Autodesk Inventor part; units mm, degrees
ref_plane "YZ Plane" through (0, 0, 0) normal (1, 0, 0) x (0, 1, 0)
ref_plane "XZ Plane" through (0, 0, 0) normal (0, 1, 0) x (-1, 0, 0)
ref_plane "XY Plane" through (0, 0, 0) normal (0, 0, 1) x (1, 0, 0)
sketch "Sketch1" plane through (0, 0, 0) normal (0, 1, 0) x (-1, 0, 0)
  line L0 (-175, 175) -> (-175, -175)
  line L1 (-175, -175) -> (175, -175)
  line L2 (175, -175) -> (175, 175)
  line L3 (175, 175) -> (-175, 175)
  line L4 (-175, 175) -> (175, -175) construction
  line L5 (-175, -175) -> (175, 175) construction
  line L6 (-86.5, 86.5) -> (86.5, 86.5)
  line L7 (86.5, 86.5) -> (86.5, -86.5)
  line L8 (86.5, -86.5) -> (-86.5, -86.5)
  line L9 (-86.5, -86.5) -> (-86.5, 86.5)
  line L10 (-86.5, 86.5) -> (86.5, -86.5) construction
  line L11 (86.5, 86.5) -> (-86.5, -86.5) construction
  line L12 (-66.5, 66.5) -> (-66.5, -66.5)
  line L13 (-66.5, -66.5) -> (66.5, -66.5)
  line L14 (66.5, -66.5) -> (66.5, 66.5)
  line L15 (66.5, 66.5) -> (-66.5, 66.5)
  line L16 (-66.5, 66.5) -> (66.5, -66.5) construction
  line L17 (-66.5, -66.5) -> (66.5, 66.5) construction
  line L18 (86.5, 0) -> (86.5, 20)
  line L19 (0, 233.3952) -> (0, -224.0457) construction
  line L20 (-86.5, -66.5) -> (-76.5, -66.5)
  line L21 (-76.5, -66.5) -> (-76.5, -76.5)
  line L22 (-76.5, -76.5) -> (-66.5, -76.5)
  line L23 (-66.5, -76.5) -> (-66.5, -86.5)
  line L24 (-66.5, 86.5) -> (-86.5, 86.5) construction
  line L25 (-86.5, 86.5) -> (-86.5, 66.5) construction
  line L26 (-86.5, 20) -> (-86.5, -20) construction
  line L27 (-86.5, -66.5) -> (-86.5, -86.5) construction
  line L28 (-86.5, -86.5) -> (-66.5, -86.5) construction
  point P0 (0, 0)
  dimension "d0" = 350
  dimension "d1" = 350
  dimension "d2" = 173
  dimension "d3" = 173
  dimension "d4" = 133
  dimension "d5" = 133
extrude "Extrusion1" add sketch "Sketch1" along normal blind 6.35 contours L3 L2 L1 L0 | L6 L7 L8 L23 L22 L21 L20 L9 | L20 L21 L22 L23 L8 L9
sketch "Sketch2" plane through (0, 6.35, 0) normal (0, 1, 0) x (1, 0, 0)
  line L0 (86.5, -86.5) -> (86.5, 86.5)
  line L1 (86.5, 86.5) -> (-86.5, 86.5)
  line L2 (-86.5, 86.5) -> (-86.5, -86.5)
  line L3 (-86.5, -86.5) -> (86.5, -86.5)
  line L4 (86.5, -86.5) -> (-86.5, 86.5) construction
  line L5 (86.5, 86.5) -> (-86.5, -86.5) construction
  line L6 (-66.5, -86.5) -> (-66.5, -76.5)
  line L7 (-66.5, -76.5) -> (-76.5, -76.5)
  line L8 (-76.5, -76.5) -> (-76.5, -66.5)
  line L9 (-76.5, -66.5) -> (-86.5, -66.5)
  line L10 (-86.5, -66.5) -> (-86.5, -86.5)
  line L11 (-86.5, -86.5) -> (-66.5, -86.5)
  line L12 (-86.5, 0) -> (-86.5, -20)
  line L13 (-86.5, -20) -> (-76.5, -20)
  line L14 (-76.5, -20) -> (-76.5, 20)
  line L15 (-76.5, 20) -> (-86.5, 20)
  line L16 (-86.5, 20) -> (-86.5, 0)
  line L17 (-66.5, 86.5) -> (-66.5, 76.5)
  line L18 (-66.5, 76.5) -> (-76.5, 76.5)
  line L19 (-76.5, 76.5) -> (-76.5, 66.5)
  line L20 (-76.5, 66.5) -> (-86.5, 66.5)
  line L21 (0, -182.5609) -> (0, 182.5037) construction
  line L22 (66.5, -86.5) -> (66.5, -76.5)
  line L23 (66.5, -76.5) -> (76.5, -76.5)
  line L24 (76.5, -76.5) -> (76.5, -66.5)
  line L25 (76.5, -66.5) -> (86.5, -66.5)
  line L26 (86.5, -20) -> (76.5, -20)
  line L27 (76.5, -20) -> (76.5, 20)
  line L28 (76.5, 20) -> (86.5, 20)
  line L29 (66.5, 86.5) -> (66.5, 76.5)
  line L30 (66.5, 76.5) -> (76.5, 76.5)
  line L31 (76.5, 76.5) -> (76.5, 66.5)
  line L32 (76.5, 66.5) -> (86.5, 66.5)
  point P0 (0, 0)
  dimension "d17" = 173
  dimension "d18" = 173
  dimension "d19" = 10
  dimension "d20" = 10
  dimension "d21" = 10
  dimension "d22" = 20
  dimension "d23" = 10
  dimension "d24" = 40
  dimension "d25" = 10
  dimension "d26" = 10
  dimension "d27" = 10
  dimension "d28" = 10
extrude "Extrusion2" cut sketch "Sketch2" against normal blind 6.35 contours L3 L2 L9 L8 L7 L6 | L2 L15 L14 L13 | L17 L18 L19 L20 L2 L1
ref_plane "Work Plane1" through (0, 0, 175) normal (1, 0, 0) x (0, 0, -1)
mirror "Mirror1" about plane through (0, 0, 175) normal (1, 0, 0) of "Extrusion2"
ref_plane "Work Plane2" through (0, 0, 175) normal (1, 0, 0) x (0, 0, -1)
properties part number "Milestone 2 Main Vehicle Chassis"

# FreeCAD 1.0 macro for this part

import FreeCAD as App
import Part
import Sketcher
Q = App.Units.Quantity


def add_polygon(sketch, points):
    """Adds a closed chain of lines whose ends are joined by coincident constraints."""
    first, n = sketch.GeometryCount, len(points)
    for a, b in zip(points, points[1:] + points[:1]):
        sketch.addGeometry(Part.LineSegment(App.Vector(*a, 0), App.Vector(*b, 0)), False)
    for i in range(n):
        sketch.addConstraint(Sketcher.Constraint("Coincident", first + i, 2, first + (i + 1) % n, 1))

doc = App.newDocument("Part")
body = doc.addObject("PartDesign::Body", "Body")

# Sketch on XZ plane
sketch1 = doc.addObject("Sketcher::SketchObject", "Sketch")
body.addObject(sketch1)
sketch1.AttachmentSupport = (doc.XZ_Plane, [""])
sketch1.MapMode = "FlatFace"
add_polygon(sketch1, [(-175, 175), (175, 175), (175, -175), (-175, -175)])  # lines 0-3
add_polygon(sketch1, [(66, 66), (-66, 66), (-66, -66), (66, -66)])  # lines 4-7
sketch1.addConstraint([
    Sketcher.Constraint("Horizontal", 0),
    Sketcher.Constraint("Vertical", 1),
    Sketcher.Constraint("Horizontal", 2),
    Sketcher.Constraint("Vertical", 3),
    Sketcher.Constraint("Horizontal", 4),
    Sketcher.Constraint("Vertical", 5),
    Sketcher.Constraint("Horizontal", 6),
    Sketcher.Constraint("Vertical", 7),
    Sketcher.Constraint("Symmetric", 0, 2, 2, 2, -1, 1),
    Sketcher.Constraint("Symmetric", 4, 2, 6, 2, -1, 1),
    Sketcher.Constraint("Equal", 2, 1),
    Sketcher.Constraint("Equal", 6, 5),
    Sketcher.Constraint("DistanceX", 0, 1, 0, 2, Q("350 mm")),
    Sketcher.Constraint("DistanceX", 4, 2, 4, 1, Q("133 mm")),
])
pad1 = doc.addObject("PartDesign::Pad", "Pad")
body.addObject(pad1)
pad1.Profile = sketch1
pad1.Length = 6.35
pad1.Reversed = True

# Sketch on XZ plane
sketch2 = doc.addObject("Sketcher::SketchObject", "Sketch001")
body.addObject(sketch2)
sketch2.AttachmentSupport = (doc.XZ_Plane, [""])
sketch2.MapMode = "FlatFace"
sketch2.AttachmentOffset = App.Placement(App.Vector(0, 0, -6.35), App.Rotation())
add_polygon(sketch2, [(-86, 86), (-66, 86), (-66, 76), (-76, 76), (-76, 66), (-86, 66)])  # lines 0-5
add_polygon(sketch2, [(-86, -20), (-86, 20), (-76, 20), (-76, -20)])  # lines 6-9
add_polygon(sketch2, [(-66, -76), (-66, -86), (-86, -86), (-86, -66), (-76, -66), (-76, -76)])  # lines 10-15
sketch2.addConstraint([
    Sketcher.Constraint("Horizontal", 0),
    Sketcher.Constraint("Vertical", 1),
    Sketcher.Constraint("Horizontal", 2),
    Sketcher.Constraint("Vertical", 3),
    Sketcher.Constraint("Horizontal", 4),
    Sketcher.Constraint("Vertical", 5),
    Sketcher.Constraint("Vertical", 6),
    Sketcher.Constraint("Horizontal", 7),
    Sketcher.Constraint("Vertical", 8),
    Sketcher.Constraint("Horizontal", 9),
    Sketcher.Constraint("Vertical", 10),
    Sketcher.Constraint("Horizontal", 11),
    Sketcher.Constraint("Vertical", 12),
    Sketcher.Constraint("Horizontal", 13),
    Sketcher.Constraint("Vertical", 14),
    Sketcher.Constraint("Horizontal", 15),
    Sketcher.Constraint("Symmetric", 0, 2, 10, 2, -1),
    Sketcher.Constraint("Symmetric", 4, 2, 12, 2, -1),
    Sketcher.Constraint("Symmetric", 2, 2, 14, 2, -1),
    Sketcher.Constraint("Vertical", 5, 2, 6, 2),
    Sketcher.Constraint("Vertical", 3, 2, 7, 2),
    Sketcher.Constraint("Equal", 2, 4),
    Sketcher.Constraint("Equal", 15, 1),
    Sketcher.Constraint("Equal", 1, 3),
    Sketcher.Constraint("DistanceX", 0, 1, 0, 2, Q("20 mm")),
    Sketcher.Constraint("DistanceY", 6, 1, 6, 2, Q("40 mm")),
    Sketcher.Constraint("DistanceY", -1, 1, 6, 2, Q("20 mm")),
    Sketcher.Constraint("DistanceY", 10, 2, 3, 2, Q("153 mm")),
    Sketcher.Constraint("DistanceX", 0, 2, -1, 1, Q("66.5 mm")),
])
pocket1 = doc.addObject("PartDesign::Pocket", "Pocket")
body.addObject(pocket1)
pocket1.Profile = sketch2
pocket1.Length = 6.35
pocket1.Reversed = True
doc.recompute()

mirrored = doc.addObject("PartDesign::Mirrored", "Mirrored")
body.addObject(mirrored)
mirrored.Originals = [pocket1]
mirrored.MirrorPlane = (doc.YZ_Plane, [""])
body.Tip = mirrored

doc.recompute()
